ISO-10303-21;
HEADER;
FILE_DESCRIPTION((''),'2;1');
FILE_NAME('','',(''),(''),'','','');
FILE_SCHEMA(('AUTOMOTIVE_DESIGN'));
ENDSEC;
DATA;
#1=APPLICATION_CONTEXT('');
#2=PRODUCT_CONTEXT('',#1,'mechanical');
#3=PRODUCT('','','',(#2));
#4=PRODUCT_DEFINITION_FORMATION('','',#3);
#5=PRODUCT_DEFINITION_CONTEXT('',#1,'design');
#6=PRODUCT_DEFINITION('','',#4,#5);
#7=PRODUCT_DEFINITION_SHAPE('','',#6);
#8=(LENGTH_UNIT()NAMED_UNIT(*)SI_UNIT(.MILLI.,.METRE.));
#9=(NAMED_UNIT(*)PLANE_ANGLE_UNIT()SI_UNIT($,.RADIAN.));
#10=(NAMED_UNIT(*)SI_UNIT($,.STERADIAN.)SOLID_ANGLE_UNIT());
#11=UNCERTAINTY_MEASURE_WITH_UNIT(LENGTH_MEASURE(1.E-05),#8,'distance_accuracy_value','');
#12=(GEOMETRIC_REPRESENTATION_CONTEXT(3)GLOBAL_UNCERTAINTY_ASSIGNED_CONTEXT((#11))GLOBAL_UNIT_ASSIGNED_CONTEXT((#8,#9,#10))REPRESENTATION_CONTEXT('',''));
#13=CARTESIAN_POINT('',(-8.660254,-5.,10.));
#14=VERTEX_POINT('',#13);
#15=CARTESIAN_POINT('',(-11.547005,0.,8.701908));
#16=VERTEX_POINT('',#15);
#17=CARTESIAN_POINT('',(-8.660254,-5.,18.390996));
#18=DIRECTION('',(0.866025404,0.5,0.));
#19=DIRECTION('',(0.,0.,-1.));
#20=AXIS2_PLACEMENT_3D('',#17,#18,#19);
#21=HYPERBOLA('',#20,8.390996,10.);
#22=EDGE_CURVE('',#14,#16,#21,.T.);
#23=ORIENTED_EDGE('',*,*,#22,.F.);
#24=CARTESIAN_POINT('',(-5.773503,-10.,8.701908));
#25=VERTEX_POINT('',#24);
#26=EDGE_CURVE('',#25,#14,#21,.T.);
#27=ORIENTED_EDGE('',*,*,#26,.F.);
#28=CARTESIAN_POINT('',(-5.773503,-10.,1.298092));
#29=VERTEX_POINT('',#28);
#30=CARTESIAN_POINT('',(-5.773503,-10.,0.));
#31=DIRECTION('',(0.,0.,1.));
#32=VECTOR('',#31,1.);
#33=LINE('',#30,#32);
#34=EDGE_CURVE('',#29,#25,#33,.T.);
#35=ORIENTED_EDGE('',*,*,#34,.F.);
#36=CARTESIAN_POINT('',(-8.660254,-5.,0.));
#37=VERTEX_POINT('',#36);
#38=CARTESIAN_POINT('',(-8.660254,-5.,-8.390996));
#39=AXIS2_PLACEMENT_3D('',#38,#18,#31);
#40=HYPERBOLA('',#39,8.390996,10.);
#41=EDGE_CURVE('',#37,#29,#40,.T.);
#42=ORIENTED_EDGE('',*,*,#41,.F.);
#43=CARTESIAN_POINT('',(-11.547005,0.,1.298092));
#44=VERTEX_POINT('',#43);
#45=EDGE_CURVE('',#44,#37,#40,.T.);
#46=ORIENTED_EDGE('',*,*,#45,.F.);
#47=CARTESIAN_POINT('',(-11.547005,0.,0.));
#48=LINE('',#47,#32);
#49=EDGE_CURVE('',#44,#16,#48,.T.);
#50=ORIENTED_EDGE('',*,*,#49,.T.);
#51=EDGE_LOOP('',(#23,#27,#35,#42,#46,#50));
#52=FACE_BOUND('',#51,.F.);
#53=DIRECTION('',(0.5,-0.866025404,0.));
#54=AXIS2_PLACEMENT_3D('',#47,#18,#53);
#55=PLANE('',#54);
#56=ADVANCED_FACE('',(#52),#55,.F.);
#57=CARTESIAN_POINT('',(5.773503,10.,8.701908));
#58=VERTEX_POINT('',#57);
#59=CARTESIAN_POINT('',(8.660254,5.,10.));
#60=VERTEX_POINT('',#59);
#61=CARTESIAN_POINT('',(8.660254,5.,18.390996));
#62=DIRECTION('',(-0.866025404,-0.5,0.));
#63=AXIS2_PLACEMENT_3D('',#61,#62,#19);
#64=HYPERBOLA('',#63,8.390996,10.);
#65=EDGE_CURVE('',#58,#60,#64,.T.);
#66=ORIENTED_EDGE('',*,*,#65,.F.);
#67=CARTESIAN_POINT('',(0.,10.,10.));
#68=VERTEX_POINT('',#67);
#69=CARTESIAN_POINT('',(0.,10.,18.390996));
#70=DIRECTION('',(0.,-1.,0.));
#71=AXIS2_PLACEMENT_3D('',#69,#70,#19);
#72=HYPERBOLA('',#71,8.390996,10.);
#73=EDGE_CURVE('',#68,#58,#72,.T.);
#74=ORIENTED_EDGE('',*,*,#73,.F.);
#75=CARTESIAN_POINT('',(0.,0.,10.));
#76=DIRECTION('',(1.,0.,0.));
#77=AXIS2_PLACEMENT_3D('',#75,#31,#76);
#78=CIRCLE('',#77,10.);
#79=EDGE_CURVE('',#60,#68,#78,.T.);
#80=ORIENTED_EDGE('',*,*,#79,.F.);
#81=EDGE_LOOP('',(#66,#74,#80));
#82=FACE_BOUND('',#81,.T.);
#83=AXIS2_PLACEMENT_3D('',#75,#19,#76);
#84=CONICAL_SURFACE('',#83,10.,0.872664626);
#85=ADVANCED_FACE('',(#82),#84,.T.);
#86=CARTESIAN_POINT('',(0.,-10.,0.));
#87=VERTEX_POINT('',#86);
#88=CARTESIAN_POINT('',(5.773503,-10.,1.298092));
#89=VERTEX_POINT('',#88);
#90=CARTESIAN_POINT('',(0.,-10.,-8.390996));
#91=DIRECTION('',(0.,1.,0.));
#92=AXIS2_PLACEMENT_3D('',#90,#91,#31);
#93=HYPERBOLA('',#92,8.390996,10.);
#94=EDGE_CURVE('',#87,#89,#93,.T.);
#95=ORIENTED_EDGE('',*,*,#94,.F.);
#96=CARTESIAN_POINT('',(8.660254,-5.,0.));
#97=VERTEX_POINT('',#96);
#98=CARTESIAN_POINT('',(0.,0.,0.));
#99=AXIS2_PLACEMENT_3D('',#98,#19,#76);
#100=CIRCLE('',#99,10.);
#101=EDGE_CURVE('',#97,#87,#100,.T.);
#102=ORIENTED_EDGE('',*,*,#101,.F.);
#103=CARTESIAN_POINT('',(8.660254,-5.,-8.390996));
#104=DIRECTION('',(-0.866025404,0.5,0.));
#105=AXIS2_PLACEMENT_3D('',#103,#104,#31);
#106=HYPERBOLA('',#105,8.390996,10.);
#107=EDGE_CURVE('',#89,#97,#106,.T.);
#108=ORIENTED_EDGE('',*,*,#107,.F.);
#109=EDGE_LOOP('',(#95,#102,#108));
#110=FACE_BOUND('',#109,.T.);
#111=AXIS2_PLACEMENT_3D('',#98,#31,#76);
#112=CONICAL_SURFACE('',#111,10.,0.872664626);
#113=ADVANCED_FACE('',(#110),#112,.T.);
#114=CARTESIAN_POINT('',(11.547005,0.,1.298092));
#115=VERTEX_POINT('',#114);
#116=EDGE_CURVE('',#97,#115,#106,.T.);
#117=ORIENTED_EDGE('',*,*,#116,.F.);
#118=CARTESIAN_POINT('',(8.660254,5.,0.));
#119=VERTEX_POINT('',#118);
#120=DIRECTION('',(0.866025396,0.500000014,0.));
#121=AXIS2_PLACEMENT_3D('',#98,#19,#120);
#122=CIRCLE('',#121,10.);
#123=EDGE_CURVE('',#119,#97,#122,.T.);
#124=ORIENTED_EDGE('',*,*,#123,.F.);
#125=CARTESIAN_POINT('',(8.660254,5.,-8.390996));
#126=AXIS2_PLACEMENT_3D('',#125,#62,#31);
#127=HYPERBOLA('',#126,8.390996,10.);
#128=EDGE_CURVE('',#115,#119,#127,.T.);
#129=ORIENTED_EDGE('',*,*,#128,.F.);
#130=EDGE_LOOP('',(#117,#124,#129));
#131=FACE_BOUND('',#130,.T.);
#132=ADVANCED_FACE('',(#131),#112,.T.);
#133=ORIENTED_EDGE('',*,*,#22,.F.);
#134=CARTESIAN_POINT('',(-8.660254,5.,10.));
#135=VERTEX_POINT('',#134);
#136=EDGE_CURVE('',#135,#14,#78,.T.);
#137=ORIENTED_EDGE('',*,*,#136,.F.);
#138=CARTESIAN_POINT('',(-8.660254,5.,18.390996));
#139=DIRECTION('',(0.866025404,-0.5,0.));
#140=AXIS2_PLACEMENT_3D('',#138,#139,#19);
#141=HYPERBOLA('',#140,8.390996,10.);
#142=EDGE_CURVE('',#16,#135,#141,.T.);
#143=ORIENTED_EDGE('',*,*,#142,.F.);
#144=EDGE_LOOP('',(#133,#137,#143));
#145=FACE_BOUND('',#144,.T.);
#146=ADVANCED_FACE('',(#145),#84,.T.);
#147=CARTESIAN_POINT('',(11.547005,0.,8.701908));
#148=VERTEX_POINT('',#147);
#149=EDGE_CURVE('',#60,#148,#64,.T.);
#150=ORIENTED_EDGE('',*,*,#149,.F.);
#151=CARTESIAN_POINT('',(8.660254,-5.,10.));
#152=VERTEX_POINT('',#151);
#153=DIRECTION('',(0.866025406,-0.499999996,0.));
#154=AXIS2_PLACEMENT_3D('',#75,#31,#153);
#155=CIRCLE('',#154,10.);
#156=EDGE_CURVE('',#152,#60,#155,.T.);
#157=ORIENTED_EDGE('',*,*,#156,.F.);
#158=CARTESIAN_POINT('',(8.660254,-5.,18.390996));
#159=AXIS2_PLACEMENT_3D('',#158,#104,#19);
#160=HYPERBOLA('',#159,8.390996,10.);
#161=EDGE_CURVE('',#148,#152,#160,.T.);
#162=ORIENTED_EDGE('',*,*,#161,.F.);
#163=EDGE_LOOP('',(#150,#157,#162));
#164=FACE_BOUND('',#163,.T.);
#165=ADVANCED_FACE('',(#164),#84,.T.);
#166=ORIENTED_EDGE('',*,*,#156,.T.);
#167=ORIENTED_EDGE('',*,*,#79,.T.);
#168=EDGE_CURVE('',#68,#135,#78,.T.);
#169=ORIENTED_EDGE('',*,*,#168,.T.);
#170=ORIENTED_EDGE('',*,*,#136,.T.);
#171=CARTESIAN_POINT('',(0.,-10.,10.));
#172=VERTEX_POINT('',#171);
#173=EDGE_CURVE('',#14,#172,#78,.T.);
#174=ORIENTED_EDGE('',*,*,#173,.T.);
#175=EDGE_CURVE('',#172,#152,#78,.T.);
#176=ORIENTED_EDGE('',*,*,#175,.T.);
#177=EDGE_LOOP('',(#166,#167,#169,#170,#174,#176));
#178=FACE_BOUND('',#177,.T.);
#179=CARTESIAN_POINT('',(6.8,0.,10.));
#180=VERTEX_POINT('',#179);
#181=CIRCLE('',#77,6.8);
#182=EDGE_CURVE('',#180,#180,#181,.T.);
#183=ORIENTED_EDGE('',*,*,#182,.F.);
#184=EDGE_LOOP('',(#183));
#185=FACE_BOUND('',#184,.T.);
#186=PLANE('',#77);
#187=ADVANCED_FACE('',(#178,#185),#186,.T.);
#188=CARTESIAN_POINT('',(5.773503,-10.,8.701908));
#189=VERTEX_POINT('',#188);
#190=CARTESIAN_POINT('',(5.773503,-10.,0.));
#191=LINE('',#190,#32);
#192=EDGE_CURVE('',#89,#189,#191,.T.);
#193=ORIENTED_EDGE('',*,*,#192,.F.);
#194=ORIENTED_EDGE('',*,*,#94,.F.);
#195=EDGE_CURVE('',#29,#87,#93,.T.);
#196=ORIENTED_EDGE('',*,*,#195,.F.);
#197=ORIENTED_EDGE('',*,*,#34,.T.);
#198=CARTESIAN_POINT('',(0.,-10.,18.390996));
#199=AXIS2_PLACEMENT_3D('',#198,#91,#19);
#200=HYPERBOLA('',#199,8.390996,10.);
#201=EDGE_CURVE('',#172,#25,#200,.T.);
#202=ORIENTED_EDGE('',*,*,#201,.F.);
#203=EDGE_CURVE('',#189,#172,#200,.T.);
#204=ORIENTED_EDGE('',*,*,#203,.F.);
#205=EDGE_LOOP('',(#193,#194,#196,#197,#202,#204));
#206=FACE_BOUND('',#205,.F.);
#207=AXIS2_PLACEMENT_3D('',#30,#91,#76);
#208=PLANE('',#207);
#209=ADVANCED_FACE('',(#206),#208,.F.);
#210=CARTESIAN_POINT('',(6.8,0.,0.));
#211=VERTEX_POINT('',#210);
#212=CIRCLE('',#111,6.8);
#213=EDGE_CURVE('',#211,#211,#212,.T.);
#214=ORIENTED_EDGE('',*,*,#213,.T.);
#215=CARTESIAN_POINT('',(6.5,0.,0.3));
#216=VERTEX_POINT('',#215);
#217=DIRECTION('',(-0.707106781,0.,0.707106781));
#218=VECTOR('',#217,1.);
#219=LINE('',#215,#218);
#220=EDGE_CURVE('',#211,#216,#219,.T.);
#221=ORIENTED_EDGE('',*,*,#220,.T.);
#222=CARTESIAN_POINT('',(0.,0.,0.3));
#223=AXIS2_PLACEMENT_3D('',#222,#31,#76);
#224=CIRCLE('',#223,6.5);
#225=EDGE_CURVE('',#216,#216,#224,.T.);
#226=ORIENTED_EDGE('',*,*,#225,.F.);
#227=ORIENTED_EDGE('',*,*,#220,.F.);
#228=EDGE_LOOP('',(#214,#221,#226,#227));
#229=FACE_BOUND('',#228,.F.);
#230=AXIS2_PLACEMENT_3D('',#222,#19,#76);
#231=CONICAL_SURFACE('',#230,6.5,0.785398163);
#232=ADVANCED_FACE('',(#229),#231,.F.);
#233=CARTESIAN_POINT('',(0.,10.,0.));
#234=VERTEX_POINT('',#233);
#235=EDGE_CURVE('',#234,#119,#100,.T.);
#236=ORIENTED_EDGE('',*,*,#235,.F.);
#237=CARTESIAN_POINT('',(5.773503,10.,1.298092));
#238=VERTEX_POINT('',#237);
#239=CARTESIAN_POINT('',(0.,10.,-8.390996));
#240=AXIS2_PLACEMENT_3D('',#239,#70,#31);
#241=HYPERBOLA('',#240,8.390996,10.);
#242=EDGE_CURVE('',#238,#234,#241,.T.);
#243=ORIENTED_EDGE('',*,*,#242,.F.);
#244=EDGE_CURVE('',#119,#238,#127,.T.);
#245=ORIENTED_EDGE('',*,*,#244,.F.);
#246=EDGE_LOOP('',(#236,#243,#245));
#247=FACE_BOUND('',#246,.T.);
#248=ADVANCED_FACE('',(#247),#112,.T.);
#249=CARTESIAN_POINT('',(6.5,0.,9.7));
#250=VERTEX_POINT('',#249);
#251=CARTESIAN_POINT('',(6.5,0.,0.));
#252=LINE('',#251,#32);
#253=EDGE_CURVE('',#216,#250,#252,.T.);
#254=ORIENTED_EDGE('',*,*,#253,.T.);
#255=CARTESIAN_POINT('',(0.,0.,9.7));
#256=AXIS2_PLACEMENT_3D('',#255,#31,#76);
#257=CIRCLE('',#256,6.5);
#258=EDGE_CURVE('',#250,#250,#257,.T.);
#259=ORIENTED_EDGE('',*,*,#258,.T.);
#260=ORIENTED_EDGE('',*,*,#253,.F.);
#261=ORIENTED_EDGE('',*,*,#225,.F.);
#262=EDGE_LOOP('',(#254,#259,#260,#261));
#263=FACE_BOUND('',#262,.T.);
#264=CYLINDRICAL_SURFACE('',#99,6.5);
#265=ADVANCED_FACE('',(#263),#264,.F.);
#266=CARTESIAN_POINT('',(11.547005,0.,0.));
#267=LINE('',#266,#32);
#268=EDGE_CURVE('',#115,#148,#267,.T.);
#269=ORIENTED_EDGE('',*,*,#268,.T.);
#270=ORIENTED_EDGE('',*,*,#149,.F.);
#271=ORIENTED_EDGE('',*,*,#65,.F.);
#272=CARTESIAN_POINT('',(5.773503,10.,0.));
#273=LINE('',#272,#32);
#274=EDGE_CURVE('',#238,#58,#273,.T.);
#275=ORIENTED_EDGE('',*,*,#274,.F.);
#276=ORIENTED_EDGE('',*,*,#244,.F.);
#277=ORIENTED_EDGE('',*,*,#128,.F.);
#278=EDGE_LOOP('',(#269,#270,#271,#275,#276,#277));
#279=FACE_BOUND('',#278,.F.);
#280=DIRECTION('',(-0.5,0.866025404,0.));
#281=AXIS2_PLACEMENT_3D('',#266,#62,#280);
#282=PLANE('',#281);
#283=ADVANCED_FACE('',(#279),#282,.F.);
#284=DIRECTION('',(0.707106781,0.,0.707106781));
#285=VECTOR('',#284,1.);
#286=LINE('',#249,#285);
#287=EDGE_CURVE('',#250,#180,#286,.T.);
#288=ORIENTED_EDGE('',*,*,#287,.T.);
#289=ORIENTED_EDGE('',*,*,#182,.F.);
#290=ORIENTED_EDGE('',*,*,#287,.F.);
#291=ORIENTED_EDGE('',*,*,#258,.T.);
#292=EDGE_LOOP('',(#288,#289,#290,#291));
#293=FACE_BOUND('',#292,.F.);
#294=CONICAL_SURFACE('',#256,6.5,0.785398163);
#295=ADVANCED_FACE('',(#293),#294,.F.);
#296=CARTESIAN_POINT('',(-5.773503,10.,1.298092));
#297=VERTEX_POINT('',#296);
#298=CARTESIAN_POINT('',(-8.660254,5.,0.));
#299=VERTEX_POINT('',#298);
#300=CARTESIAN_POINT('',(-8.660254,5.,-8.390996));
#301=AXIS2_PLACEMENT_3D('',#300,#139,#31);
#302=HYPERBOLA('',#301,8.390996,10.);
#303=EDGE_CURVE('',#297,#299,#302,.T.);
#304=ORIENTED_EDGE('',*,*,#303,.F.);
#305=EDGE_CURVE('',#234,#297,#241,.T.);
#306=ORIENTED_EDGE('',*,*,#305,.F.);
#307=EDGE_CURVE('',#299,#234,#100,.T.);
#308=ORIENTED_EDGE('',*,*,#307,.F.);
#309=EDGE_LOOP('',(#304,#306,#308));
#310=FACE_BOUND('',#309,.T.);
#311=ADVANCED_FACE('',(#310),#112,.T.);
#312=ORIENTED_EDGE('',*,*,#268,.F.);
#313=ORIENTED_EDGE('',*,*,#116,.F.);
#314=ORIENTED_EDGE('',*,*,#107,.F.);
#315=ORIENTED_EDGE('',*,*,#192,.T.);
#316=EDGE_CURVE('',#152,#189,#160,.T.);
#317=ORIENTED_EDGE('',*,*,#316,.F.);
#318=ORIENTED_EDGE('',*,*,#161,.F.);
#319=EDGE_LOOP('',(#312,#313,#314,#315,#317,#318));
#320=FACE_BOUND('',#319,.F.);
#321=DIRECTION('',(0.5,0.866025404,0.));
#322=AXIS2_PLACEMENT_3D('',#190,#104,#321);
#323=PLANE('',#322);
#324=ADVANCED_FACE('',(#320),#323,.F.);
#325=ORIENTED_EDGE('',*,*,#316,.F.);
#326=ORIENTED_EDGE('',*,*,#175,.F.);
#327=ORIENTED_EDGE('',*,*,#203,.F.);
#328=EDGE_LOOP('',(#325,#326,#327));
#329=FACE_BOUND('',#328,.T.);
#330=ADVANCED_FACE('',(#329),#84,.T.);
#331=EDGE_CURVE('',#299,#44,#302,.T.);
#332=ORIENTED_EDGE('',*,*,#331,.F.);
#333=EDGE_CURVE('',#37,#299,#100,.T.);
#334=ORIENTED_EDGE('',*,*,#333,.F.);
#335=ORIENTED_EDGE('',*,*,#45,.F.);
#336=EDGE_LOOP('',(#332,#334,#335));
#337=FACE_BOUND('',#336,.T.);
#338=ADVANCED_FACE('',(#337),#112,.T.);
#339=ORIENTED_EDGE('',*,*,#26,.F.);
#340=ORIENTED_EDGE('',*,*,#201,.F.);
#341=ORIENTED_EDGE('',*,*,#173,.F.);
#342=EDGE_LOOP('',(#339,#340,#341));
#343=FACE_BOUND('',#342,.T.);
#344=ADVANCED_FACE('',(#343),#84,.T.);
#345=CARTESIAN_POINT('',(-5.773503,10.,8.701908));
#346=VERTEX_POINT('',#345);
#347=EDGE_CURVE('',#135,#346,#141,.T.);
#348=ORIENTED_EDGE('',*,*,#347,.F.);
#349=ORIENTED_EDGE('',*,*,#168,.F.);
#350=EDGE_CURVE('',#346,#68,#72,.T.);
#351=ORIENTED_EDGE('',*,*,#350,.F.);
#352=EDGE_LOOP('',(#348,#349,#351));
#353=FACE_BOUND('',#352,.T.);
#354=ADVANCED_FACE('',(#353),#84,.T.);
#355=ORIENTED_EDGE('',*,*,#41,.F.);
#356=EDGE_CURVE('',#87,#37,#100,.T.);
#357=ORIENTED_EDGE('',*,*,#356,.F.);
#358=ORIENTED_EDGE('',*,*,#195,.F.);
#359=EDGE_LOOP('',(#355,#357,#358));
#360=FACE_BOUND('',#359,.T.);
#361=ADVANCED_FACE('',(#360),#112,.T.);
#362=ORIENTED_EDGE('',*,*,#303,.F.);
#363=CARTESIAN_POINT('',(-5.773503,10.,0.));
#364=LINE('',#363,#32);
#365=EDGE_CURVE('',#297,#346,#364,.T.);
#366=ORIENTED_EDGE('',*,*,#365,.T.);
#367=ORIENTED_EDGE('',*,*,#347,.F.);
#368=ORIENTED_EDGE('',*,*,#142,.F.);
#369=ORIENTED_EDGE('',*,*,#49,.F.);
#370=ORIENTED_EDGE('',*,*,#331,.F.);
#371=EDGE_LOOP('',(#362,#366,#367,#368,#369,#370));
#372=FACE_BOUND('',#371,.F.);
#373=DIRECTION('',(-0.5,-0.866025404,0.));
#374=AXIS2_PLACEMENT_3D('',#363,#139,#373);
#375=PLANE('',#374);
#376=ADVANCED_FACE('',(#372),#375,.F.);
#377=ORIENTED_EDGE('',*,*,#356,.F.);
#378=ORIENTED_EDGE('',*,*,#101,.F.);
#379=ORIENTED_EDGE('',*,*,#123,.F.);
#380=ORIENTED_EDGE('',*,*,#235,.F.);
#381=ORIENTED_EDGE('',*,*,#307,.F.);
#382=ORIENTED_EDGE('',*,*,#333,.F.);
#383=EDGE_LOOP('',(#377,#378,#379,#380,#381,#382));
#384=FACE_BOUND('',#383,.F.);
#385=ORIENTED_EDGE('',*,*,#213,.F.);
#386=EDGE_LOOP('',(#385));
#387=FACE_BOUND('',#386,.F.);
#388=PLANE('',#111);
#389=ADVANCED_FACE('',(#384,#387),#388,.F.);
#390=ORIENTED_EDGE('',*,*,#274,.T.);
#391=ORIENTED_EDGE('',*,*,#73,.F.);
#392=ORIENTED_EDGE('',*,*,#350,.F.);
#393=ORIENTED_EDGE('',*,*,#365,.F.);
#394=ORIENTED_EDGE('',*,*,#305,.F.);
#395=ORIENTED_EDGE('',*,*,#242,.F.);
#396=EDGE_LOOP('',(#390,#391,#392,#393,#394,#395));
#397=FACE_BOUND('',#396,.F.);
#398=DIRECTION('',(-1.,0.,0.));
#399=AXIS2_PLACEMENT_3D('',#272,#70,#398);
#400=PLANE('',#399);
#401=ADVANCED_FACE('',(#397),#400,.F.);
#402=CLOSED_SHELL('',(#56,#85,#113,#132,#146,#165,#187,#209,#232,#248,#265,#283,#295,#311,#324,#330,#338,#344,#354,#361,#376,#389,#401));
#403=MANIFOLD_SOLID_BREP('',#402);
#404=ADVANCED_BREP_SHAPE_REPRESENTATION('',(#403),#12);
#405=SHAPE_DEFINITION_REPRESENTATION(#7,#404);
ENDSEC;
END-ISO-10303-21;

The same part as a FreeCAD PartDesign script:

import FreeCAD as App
import Part
import Sketcher
Q = App.Units.Quantity


def edges_at(feature, points):
    """Names of the edges that pass closest to the given points."""
    edges = feature.Shape.Edges
    near = lambda p: min(range(len(edges)), key=lambda i: edges[i].distToShape(Part.Vertex(*p))[0])
    return sorted({f"Edge{near(p) + 1}" for p in points})


def faces_at(feature, points):
    """Names of the faces that lie closest to the given points."""
    faces = feature.Shape.Faces
    near = lambda p: min(range(len(faces)), key=lambda i: faces[i].distToShape(Part.Vertex(*p))[0])
    return sorted({f"Face{near(p) + 1}" for p in points})


def add_polygon(sketch, points):
    """Adds a closed chain of lines whose ends are joined by coincident constraints."""
    first, n = sketch.GeometryCount, len(points)
    for a, b in zip(points, points[1:] + points[:1]):
        sketch.addGeometry(Part.LineSegment(App.Vector(*a, 0), App.Vector(*b, 0)), False)
    for i in range(n):
        sketch.addConstraint(Sketcher.Constraint("Coincident", first + i, 2, first + (i + 1) % n, 1))

doc = App.newDocument("Part")
body = doc.addObject("PartDesign::Body", "Body")

sketch1 = doc.addObject("Sketcher::SketchObject", "Sketch")
body.addObject(sketch1)
sketch1.AttachmentSupport = (doc.XY_Plane, [""])
sketch1.MapMode = "FlatFace"
add_polygon(sketch1, [(-12, 0), (-6, -10), (6, -10), (12, 0), (6, 10), (-6, 10)])
sketch1.addGeometry(Part.Circle(App.Vector(0, 0, 0), App.Vector(0, 0, 1), 6), False)
sketch1.addConstraint(Sketcher.Constraint("Horizontal", 1))
sketch1.addConstraint(Sketcher.Constraint("Horizontal", 4))
sketch1.addConstraint(Sketcher.Constraint("Coincident", 6, 3, -1, 1))
sketch1.addConstraint(Sketcher.Constraint("Symmetric", 0, 2, 3, 2, -1, 1))
sketch1.addConstraint(Sketcher.Constraint("Symmetric", 2, 2, 5, 2, -1, 1))
sketch1.addConstraint(Sketcher.Constraint("PointOnObject", 2, 2, -1))
sketch1.addConstraint(Sketcher.Constraint("Parallel", 2, 5))
sketch1.addConstraint(Sketcher.Constraint("Vertical", 1, 2, 3, 2))
sketch1.addConstraint(Sketcher.Constraint("Diameter", 6, 13.0))
sketch1.addConstraint(Sketcher.Constraint("Angle", 0, Q("-60 deg")))
sketch1.addConstraint(Sketcher.Constraint("DistanceY", 0, 2, -1, 1, 10.0))
sketch1.addConstraint(Sketcher.Constraint("DistanceX", 1, 1, 1, 2, 11.547005))
pad1 = doc.addObject("PartDesign::Pad", "Pad")
body.addObject(pad1)
pad1.Profile = sketch1
pad1.Length = 10
body2 = doc.addObject("PartDesign::Body", "Body001")

sketch2 = doc.addObject("Sketcher::SketchObject", "Sketch001")
body2.addObject(sketch2)
sketch2.AttachmentSupport = (doc.getObject("XY_Plane001"), [""])
sketch2.MapMode = "FlatFace"
sketch2.AttachmentOffset = App.Placement(App.Vector(0, 0, 10), App.Rotation())
add_polygon(sketch2, [(-19, 18), (-19, -18), (19, -18), (19, 18)])
sketch2.addGeometry(Part.Circle(App.Vector(0, 0, 0), App.Vector(0, 0, 1), 10), False)
sketch2.addConstraint(Sketcher.Constraint("Vertical", 0))
sketch2.addConstraint(Sketcher.Constraint("Horizontal", 1))
sketch2.addConstraint(Sketcher.Constraint("Vertical", 2))
sketch2.addConstraint(Sketcher.Constraint("Horizontal", 3))
sketch2.addConstraint(Sketcher.Constraint("Coincident", 4, 3, -1, 1))
sketch2.addConstraint(Sketcher.Constraint("Symmetric", 0, 2, 2, 2, -1, 1))
sketch2.addConstraint(Sketcher.Constraint("Diameter", 4, 20.0))
sketch2.addConstraint(Sketcher.Constraint("DistanceY", 0, 2, 0, 1, 35.58))
sketch2.addConstraint(Sketcher.Constraint("DistanceX", 1, 1, 1, 2, 38.674))
pad2 = doc.addObject("PartDesign::Pad", "Pad001")
body2.addObject(pad2)
pad2.Profile = sketch2
pad2.Length = 3
pad2.Reversed = True
doc.recompute()

datumplane = doc.addObject("PartDesign::Plane", "DatumPlane")
body2.addObject(datumplane)
datumplane.AttachmentSupport = (doc.getObject("XY_Plane001"), [""])
datumplane.MapMode = "FlatFace"
datumplane.AttachmentOffset = App.Placement(App.Vector(0, 0, 10), App.Rotation())
draft = doc.addObject("PartDesign::Draft", "Draft")
body2.addObject(draft)
draft.Base = (pad2, faces_at(pad2, [
    (0, -17.79, 8.5),
    (19.337, 0, 8.5),
    (0, 17.79, 8.5),
    (-19.337, 0, 8.5),
    (-10, 0, 8.5),
]))
draft.NeutralPlane = (datumplane, [""])
draft.Angle = 50
draft.Reversed = True
doc.recompute()

boolean = doc.addObject("PartDesign::Boolean", "Boolean")
body.addObject(boolean)
boolean.Type = "Cut"
boolean.addObjects([body2])
body3 = doc.addObject("PartDesign::Body", "Body002")

sketch3 = doc.addObject("Sketcher::SketchObject", "Sketch002")
body3.addObject(sketch3)
sketch3.AttachmentSupport = (doc.getObject("XY_Plane002"), [""])
sketch3.MapMode = "FlatFace"
add_polygon(sketch3, [(-19, -18), (-19, 18), (19, 18), (19, -18)])
sketch3.addGeometry(Part.Circle(App.Vector(0, 0, 0), App.Vector(0, 0, 1), 10), False)
sketch3.addConstraint(Sketcher.Constraint("Vertical", 0))
sketch3.addConstraint(Sketcher.Constraint("Horizontal", 1))
sketch3.addConstraint(Sketcher.Constraint("Vertical", 2))
sketch3.addConstraint(Sketcher.Constraint("Horizontal", 3))
sketch3.addConstraint(Sketcher.Constraint("Coincident", 4, 3, -1, 1))
sketch3.addConstraint(Sketcher.Constraint("Symmetric", 0, 2, 2, 2, -1, 1))
sketch3.addConstraint(Sketcher.Constraint("Diameter", 4, 20.0))
sketch3.addConstraint(Sketcher.Constraint("DistanceY", 0, 1, 0, 2, 35.58))
sketch3.addConstraint(Sketcher.Constraint("DistanceX", 1, 1, 1, 2, 38.674))
pad3 = doc.addObject("PartDesign::Pad", "Pad002")
body3.addObject(pad3)
pad3.Profile = sketch3
pad3.Length = 3
doc.recompute()

draft2 = doc.addObject("PartDesign::Draft", "Draft001")
body3.addObject(draft2)
draft2.Base = (pad3, faces_at(pad3, [
    (0, -17.79, 1.5),
    (19.337, 0, 1.5),
    (0, 17.79, 1.5),
    (-19.337, 0, 1.5),
    (-10, 0, 1.5),
]))
draft2.NeutralPlane = (doc.getObject("XY_Plane002"), [""])
draft2.Angle = 50
draft2.Reversed = False
doc.recompute()

boolean2 = doc.addObject("PartDesign::Boolean", "Boolean001")
body.addObject(boolean2)
boolean2.Type = "Cut"
boolean2.addObjects([body3])
doc.recompute()

chamfer = doc.addObject("PartDesign::Chamfer", "Chamfer")
body.addObject(chamfer)
chamfer.Base = (boolean2, edges_at(boolean2, [(-6.5, 0, 0), (-6.5, 0, 10)]))
chamfer.Size = 0.3

doc.recompute()
